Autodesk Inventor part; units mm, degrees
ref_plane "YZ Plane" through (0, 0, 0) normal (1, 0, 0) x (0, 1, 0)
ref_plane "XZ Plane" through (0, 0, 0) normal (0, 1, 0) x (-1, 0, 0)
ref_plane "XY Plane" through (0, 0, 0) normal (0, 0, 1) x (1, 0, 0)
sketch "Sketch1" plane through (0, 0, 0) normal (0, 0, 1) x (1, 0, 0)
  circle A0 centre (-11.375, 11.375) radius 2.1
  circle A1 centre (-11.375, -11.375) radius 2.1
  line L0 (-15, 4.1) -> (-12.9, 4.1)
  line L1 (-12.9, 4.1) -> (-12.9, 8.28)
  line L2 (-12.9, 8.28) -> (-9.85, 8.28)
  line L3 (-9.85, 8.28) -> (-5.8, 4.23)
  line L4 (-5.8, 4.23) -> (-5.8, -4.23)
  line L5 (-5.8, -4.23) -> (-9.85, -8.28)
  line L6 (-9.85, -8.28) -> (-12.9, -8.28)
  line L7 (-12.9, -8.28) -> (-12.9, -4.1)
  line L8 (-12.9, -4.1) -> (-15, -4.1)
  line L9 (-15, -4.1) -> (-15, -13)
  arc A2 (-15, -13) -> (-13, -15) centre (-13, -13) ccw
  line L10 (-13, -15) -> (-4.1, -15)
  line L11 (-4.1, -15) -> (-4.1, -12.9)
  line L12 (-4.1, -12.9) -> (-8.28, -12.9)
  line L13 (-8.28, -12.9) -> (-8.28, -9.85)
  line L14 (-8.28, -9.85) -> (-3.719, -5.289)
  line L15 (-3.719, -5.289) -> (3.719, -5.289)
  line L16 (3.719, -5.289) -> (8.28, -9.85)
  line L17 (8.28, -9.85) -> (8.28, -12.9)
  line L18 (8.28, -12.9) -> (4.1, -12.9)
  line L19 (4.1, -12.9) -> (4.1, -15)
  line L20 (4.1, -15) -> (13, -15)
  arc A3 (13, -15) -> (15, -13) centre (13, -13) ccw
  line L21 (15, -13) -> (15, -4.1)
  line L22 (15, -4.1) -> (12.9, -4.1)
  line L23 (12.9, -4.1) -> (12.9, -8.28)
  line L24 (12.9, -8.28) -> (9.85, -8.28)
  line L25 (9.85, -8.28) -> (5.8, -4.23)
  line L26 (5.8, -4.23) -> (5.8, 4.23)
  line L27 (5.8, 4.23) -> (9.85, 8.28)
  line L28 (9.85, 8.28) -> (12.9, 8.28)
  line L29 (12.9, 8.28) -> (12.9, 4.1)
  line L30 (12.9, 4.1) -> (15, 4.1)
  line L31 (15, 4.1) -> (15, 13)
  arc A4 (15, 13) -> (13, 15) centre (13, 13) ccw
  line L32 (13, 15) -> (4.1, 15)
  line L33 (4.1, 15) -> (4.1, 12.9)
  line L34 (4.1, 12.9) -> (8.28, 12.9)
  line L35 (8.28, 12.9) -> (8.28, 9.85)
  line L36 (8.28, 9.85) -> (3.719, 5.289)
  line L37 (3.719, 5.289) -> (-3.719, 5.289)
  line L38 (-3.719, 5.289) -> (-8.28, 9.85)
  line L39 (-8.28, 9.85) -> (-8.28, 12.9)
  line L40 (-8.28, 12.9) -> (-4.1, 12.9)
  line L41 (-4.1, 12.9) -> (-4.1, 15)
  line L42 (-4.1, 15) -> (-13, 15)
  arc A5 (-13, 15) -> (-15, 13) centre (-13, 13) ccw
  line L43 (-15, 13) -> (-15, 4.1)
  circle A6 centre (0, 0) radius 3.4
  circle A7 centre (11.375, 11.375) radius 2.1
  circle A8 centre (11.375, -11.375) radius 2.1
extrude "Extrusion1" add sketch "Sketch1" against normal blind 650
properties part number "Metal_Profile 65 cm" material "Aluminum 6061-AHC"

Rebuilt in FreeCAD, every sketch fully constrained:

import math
import FreeCAD as App
import Part
import Sketcher
Q = App.Units.Quantity

doc = App.newDocument("Part")
params = doc.addObject("Spreadsheet::Sheet", "Params")
for row, (alias, value) in enumerate([
    ("sketch1_radius", "2 mm"),
    ("sketch1_diameter", "4.2 mm"),
    ("sketch1_diameter2", "6.8 mm"),
    ("sketch1_width", "2.1 mm"),
    ("sketch1_width2", "8.9 mm"),
    ("pad1_length", "650 mm"),
], start=1):
    params.set(f"A{row}", alias)
    params.set(f"B{row}", "=" + value)
    params.setAlias(f"B{row}", alias)

body = doc.addObject("PartDesign::Body", "Body")

# Sketch on XY plane
sketch1 = body.newObject("Sketcher::SketchObject", "Sketch")
sketch1.AttachmentSupport = (doc.getObject("XY_Plane"), [""])
sketch1.MapMode = "FlatFace"
sketch1.addGeometry(Part.LineSegment(App.Vector(-15, 13, 0), App.Vector(-15, 4.1, 0)), False)
sketch1.addGeometry(Part.LineSegment(App.Vector(-15, 4.1, 0), App.Vector(-12.9, 4.1, 0)), False)
sketch1.addGeometry(Part.LineSegment(App.Vector(-12.9, 4.1, 0), App.Vector(-12.9, 8.3, 0)), False)
sketch1.addGeometry(Part.LineSegment(App.Vector(-12.9, 8.3, 0), App.Vector(-9.8, 8.3, 0)), False)
sketch1.addGeometry(Part.LineSegment(App.Vector(-9.8, 8.3, 0), App.Vector(-5.8, 4.2, 0)), False)
sketch1.addGeometry(Part.LineSegment(App.Vector(-5.8, 4.2, 0), App.Vector(-5.8, -4.2, 0)), False)
sketch1.addGeometry(Part.LineSegment(App.Vector(-5.8, -4.2, 0), App.Vector(-9.8, -8.3, 0)), False)
sketch1.addGeometry(Part.LineSegment(App.Vector(-9.8, -8.3, 0), App.Vector(-12.9, -8.3, 0)), False)
sketch1.addGeometry(Part.LineSegment(App.Vector(-12.9, -8.3, 0), App.Vector(-12.9, -4.1, 0)), False)
sketch1.addGeometry(Part.LineSegment(App.Vector(-12.9, -4.1, 0), App.Vector(-15, -4.1, 0)), False)
sketch1.addGeometry(Part.LineSegment(App.Vector(-15, -4.1, 0), App.Vector(-15, -13, 0)), False)
sketch1.addGeometry(Part.ArcOfCircle(Part.Circle(App.Vector(-13, -13, 0), App.Vector(0, 0, 1), 2), math.radians(180), math.radians(270)), False)
sketch1.addGeometry(Part.LineSegment(App.Vector(-13, -15, 0), App.Vector(-4.1, -15, 0)), False)
sketch1.addGeometry(Part.LineSegment(App.Vector(-4.1, -15, 0), App.Vector(-4.1, -12.9, 0)), False)
sketch1.addGeometry(Part.LineSegment(App.Vector(-4.1, -12.9, 0), App.Vector(-8.3, -12.9, 0)), False)
sketch1.addGeometry(Part.LineSegment(App.Vector(-8.3, -12.9, 0), App.Vector(-8.3, -9.8, 0)), False)
sketch1.addGeometry(Part.LineSegment(App.Vector(-8.3, -9.8, 0), App.Vector(-3.7, -5.3, 0)), False)
sketch1.addGeometry(Part.LineSegment(App.Vector(-3.7, -5.3, 0), App.Vector(3.7, -5.3, 0)), False)
sketch1.addGeometry(Part.LineSegment(App.Vector(3.7, -5.3, 0), App.Vector(8.3, -9.8, 0)), False)
sketch1.addGeometry(Part.LineSegment(App.Vector(8.3, -9.8, 0), App.Vector(8.3, -12.9, 0)), False)
sketch1.addGeometry(Part.LineSegment(App.Vector(8.3, -12.9, 0), App.Vector(4.1, -12.9, 0)), False)
sketch1.addGeometry(Part.LineSegment(App.Vector(4.1, -12.9, 0), App.Vector(4.1, -15, 0)), False)
sketch1.addGeometry(Part.LineSegment(App.Vector(4.1, -15, 0), App.Vector(13, -15, 0)), False)
sketch1.addGeometry(Part.ArcOfCircle(Part.Circle(App.Vector(13, -13, 0), App.Vector(0, 0, 1), 2), math.radians(-90), math.radians(0)), False)
sketch1.addGeometry(Part.LineSegment(App.Vector(15, -13, 0), App.Vector(15, -4.1, 0)), False)
sketch1.addGeometry(Part.LineSegment(App.Vector(15, -4.1, 0), App.Vector(12.9, -4.1, 0)), False)
sketch1.addGeometry(Part.LineSegment(App.Vector(12.9, -4.1, 0), App.Vector(12.9, -8.3, 0)), False)
sketch1.addGeometry(Part.LineSegment(App.Vector(12.9, -8.3, 0), App.Vector(9.8, -8.3, 0)), False)
sketch1.addGeometry(Part.LineSegment(App.Vector(9.8, -8.3, 0), App.Vector(5.8, -4.2, 0)), False)
sketch1.addGeometry(Part.LineSegment(App.Vector(5.8, -4.2, 0), App.Vector(5.8, 4.2, 0)), False)
sketch1.addGeometry(Part.LineSegment(App.Vector(5.8, 4.2, 0), App.Vector(9.8, 8.3, 0)), False)
sketch1.addGeometry(Part.LineSegment(App.Vector(9.8, 8.3, 0), App.Vector(12.9, 8.3, 0)), False)
sketch1.addGeometry(Part.LineSegment(App.Vector(12.9, 8.3, 0), App.Vector(12.9, 4.1, 0)), False)
sketch1.addGeometry(Part.LineSegment(App.Vector(12.9, 4.1, 0), App.Vector(15, 4.1, 0)), False)
sketch1.addGeometry(Part.LineSegment(App.Vector(15, 4.1, 0), App.Vector(15, 13, 0)), False)
sketch1.addGeometry(Part.ArcOfCircle(Part.Circle(App.Vector(13, 13, 0), App.Vector(0, 0, 1), 2), math.radians(0), math.radians(90)), False)
sketch1.addGeometry(Part.LineSegment(App.Vector(13, 15, 0), App.Vector(4.1, 15, 0)), False)
sketch1.addGeometry(Part.LineSegment(App.Vector(4.1, 15, 0), App.Vector(4.1, 12.9, 0)), False)
sketch1.addGeometry(Part.LineSegment(App.Vector(4.1, 12.9, 0), App.Vector(8.3, 12.9, 0)), False)
sketch1.addGeometry(Part.LineSegment(App.Vector(8.3, 12.9, 0), App.Vector(8.3, 9.8, 0)), False)
sketch1.addGeometry(Part.LineSegment(App.Vector(8.3, 9.8, 0), App.Vector(3.7, 5.3, 0)), False)
sketch1.addGeometry(Part.LineSegment(App.Vector(3.7, 5.3, 0), App.Vector(-3.7, 5.3, 0)), False)
sketch1.addGeometry(Part.LineSegment(App.Vector(-3.7, 5.3, 0), App.Vector(-8.3, 9.8, 0)), False)
sketch1.addGeometry(Part.LineSegment(App.Vector(-8.3, 9.8, 0), App.Vector(-8.3, 12.9, 0)), False)
sketch1.addGeometry(Part.LineSegment(App.Vector(-8.3, 12.9, 0), App.Vector(-4.1, 12.9, 0)), False)
sketch1.addGeometry(Part.LineSegment(App.Vector(-4.1, 12.9, 0), App.Vector(-4.1, 15, 0)), False)
sketch1.addGeometry(Part.LineSegment(App.Vector(-4.1, 15, 0), App.Vector(-13, 15, 0)), False)
sketch1.addGeometry(Part.ArcOfCircle(Part.Circle(App.Vector(-13, 13, 0), App.Vector(0, 0, 1), 2), math.radians(90), math.radians(180)), False)
sketch1.addGeometry(Part.Circle(App.Vector(-11.4, -11.4, 0), App.Vector(0, 0, 1), 2.1), False)
sketch1.addGeometry(Part.Circle(App.Vector(11.4, -11.4, 0), App.Vector(0, 0, 1), 2.1), False)
sketch1.addGeometry(Part.Circle(App.Vector(-11.4, 11.4, 0), App.Vector(0, 0, 1), 2.1), False)
sketch1.addGeometry(Part.Circle(App.Vector(0, 0, 0), App.Vector(0, 0, 1), 3.4), False)
sketch1.addGeometry(Part.Circle(App.Vector(11.4, 11.4, 0), App.Vector(0, 0, 1), 2.1), False)
sketch1.addConstraint(Sketcher.Constraint("Coincident", 0, 2, 1, 1))
sketch1.addConstraint(Sketcher.Constraint("Coincident", 1, 2, 2, 1))
sketch1.addConstraint(Sketcher.Constraint("Coincident", 2, 2, 3, 1))
sketch1.addConstraint(Sketcher.Constraint("Coincident", 3, 2, 4, 1))
sketch1.addConstraint(Sketcher.Constraint("Coincident", 4, 2, 5, 1))
sketch1.addConstraint(Sketcher.Constraint("Coincident", 5, 2, 6, 1))
sketch1.addConstraint(Sketcher.Constraint("Coincident", 6, 2, 7, 1))
sketch1.addConstraint(Sketcher.Constraint("Coincident", 7, 2, 8, 1))
sketch1.addConstraint(Sketcher.Constraint("Coincident", 8, 2, 9, 1))
sketch1.addConstraint(Sketcher.Constraint("Coincident", 9, 2, 10, 1))
sketch1.addConstraint(Sketcher.Constraint("Tangent", 10, 2, 11, 1))
sketch1.addConstraint(Sketcher.Constraint("Tangent", 11, 2, 12, 1))
sketch1.addConstraint(Sketcher.Constraint("Coincident", 12, 2, 13, 1))
sketch1.addConstraint(Sketcher.Constraint("Coincident", 13, 2, 14, 1))
sketch1.addConstraint(Sketcher.Constraint("Coincident", 14, 2, 15, 1))
sketch1.addConstraint(Sketcher.Constraint("Coincident", 15, 2, 16, 1))
sketch1.addConstraint(Sketcher.Constraint("Coincident", 16, 2, 17, 1))
sketch1.addConstraint(Sketcher.Constraint("Coincident", 17, 2, 18, 1))
sketch1.addConstraint(Sketcher.Constraint("Coincident", 18, 2, 19, 1))
sketch1.addConstraint(Sketcher.Constraint("Coincident", 19, 2, 20, 1))
sketch1.addConstraint(Sketcher.Constraint("Coincident", 20, 2, 21, 1))
sketch1.addConstraint(Sketcher.Constraint("Coincident", 21, 2, 22, 1))
sketch1.addConstraint(Sketcher.Constraint("Tangent", 22, 2, 23, 1))
sketch1.addConstraint(Sketcher.Constraint("Tangent", 23, 2, 24, 1))
sketch1.addConstraint(Sketcher.Constraint("Coincident", 24, 2, 25, 1))
sketch1.addConstraint(Sketcher.Constraint("Coincident", 25, 2, 26, 1))
sketch1.addConstraint(Sketcher.Constraint("Coincident", 26, 2, 27, 1))
sketch1.addConstraint(Sketcher.Constraint("Coincident", 27, 2, 28, 1))
sketch1.addConstraint(Sketcher.Constraint("Coincident", 28, 2, 29, 1))
sketch1.addConstraint(Sketcher.Constraint("Coincident", 29, 2, 30, 1))
sketch1.addConstraint(Sketcher.Constraint("Coincident", 30, 2, 31, 1))
sketch1.addConstraint(Sketcher.Constraint("Coincident", 31, 2, 32, 1))
sketch1.addConstraint(Sketcher.Constraint("Coincident", 32, 2, 33, 1))
sketch1.addConstraint(Sketcher.Constraint("Coincident", 33, 2, 34, 1))
sketch1.addConstraint(Sketcher.Constraint("Tangent", 34, 2, 35, 1))
sketch1.addConstraint(Sketcher.Constraint("Tangent", 35, 2, 36, 1))
sketch1.addConstraint(Sketcher.Constraint("Coincident", 36, 2, 37, 1))
sketch1.addConstraint(Sketcher.Constraint("Coincident", 37, 2, 38, 1))
sketch1.addConstraint(Sketcher.Constraint("Coincident", 38, 2, 39, 1))
sketch1.addConstraint(Sketcher.Constraint("Coincident", 39, 2, 40, 1))
sketch1.addConstraint(Sketcher.Constraint("Coincident", 40, 2, 41, 1))
sketch1.addConstraint(Sketcher.Constraint("Coincident", 41, 2, 42, 1))
sketch1.addConstraint(Sketcher.Constraint("Coincident", 42, 2, 43, 1))
sketch1.addConstraint(Sketcher.Constraint("Coincident", 43, 2, 44, 1))
sketch1.addConstraint(Sketcher.Constraint("Coincident", 44, 2, 45, 1))
sketch1.addConstraint(Sketcher.Constraint("Coincident", 45, 2, 46, 1))
sketch1.addConstraint(Sketcher.Constraint("Tangent", 46, 2, 47, 1))
sketch1.addConstraint(Sketcher.Constraint("Tangent", 47, 2, 0, 1))
sketch1.addConstraint(Sketcher.Constraint("Vertical", 0))
sketch1.addConstraint(Sketcher.Constraint("Horizontal", 1))
sketch1.addConstraint(Sketcher.Constraint("Vertical", 2))
sketch1.addConstraint(Sketcher.Constraint("Horizontal", 3))
sketch1.addConstraint(Sketcher.Constraint("Vertical", 5))
sketch1.addConstraint(Sketcher.Constraint("Horizontal", 7))
sketch1.addConstraint(Sketcher.Constraint("Vertical", 8))
sketch1.addConstraint(Sketcher.Constraint("Horizontal", 9))
sketch1.addConstraint(Sketcher.Constraint("Vertical", 10))
sketch1.addConstraint(Sketcher.Constraint("Horizontal", 12))
sketch1.addConstraint(Sketcher.Constraint("Vertical", 13))
sketch1.addConstraint(Sketcher.Constraint("Horizontal", 14))
sketch1.addConstraint(Sketcher.Constraint("Vertical", 15))
sketch1.addConstraint(Sketcher.Constraint("Horizontal", 17))
sketch1.addConstraint(Sketcher.Constraint("Vertical", 19))
sketch1.addConstraint(Sketcher.Constraint("Horizontal", 20))
sketch1.addConstraint(Sketcher.Constraint("Vertical", 21))
sketch1.addConstraint(Sketcher.Constraint("Horizontal", 22))
sketch1.addConstraint(Sketcher.Constraint("Vertical", 24))
sketch1.addConstraint(Sketcher.Constraint("Horizontal", 25))
sketch1.addConstraint(Sketcher.Constraint("Vertical", 26))
sketch1.addConstraint(Sketcher.Constraint("Horizontal", 27))
sketch1.addConstraint(Sketcher.Constraint("Vertical", 29))
sketch1.addConstraint(Sketcher.Constraint("Horizontal", 31))
sketch1.addConstraint(Sketcher.Constraint("Vertical", 32))
sketch1.addConstraint(Sketcher.Constraint("Horizontal", 33))
sketch1.addConstraint(Sketcher.Constraint("Vertical", 34))
sketch1.addConstraint(Sketcher.Constraint("Horizontal", 36))
sketch1.addConstraint(Sketcher.Constraint("Vertical", 37))
sketch1.addConstraint(Sketcher.Constraint("Horizontal", 38))
sketch1.addConstraint(Sketcher.Constraint("Vertical", 39))
sketch1.addConstraint(Sketcher.Constraint("Horizontal", 41))
sketch1.addConstraint(Sketcher.Constraint("Vertical", 43))
sketch1.addConstraint(Sketcher.Constraint("Horizontal", 44))
sketch1.addConstraint(Sketcher.Constraint("Vertical", 45))
sketch1.addConstraint(Sketcher.Constraint("Horizontal", 46))
sketch1.addConstraint(Sketcher.Constraint("Coincident", 51, 3, -1, 1))
sketch1.addConstraint(Sketcher.Constraint("Equal", 11, 23))
sketch1.addConstraint(Sketcher.Constraint("Equal", 23, 35))
sketch1.addConstraint(Sketcher.Constraint("Equal", 35, 47))
sketch1.addConstraint(Sketcher.Constraint("Equal", 48, 49))
sketch1.addConstraint(Sketcher.Constraint("Equal", 49, 50))
sketch1.addConstraint(Sketcher.Constraint("Equal", 50, 52))
sketch1.addConstraint(Sketcher.Constraint("Symmetric", 11, 3, 35, 3, -1, 1))
sketch1.addConstraint(Sketcher.Constraint("Symmetric", 23, 3, 47, 3, -1, 1))
sketch1.addConstraint(Sketcher.Constraint("Symmetric", 49, 3, 50, 3, -1, 1))
sketch1.addConstraint(Sketcher.Constraint("Symmetric", 48, 3, 52, 3, -1, 1))
sketch1.addConstraint(Sketcher.Constraint("Symmetric", 1, 2, 25, 2, -1, 1))
sketch1.addConstraint(Sketcher.Constraint("Symmetric", 3, 2, 27, 2, -1, 1))
sketch1.addConstraint(Sketcher.Constraint("Symmetric", 4, 2, 28, 2, -1, 1))
sketch1.addConstraint(Sketcher.Constraint("Symmetric", 6, 2, 30, 2, -1, 1))
sketch1.addConstraint(Sketcher.Constraint("Symmetric", 8, 2, 32, 2, -1, 1))
sketch1.addConstraint(Sketcher.Constraint("Symmetric", 13, 2, 37, 2, -1, 1))
sketch1.addConstraint(Sketcher.Constraint("Symmetric", 15, 2, 39, 2, -1, 1))
sketch1.addConstraint(Sketcher.Constraint("Symmetric", 16, 2, 40, 2, -1, 1))
sketch1.addConstraint(Sketcher.Constraint("Symmetric", 18, 2, 42, 2, -1, 1))
sketch1.addConstraint(Sketcher.Constraint("Symmetric", 20, 2, 44, 2, -1, 1))
sketch1.addConstraint(Sketcher.Constraint("Symmetric", 11, 3, 23, 3, -2))
sketch1.addConstraint(Sketcher.Constraint("Symmetric", 48, 3, 49, 3, -2))
sketch1.addConstraint(Sketcher.Constraint("Symmetric", 15, 2, 18, 2, -2))
sketch1.addConstraint(Sketcher.Constraint("Symmetric", 13, 2, 20, 2, -2))
sketch1.addConstraint(Sketcher.Constraint("Symmetric", 8, 2, 25, 2, -2))
sketch1.addConstraint(Sketcher.Constraint("Symmetric", 6, 2, 27, 2, -2))
sketch1.addConstraint(Sketcher.Constraint("Perpendicular", 4, 6))
sketch1.addConstraint(Sketcher.Constraint("Parallel", 6, 16))
sketch1.addConstraint(Sketcher.Constraint("Perpendicular", 16, 18))
sketch1.addConstraint(Sketcher.Constraint("Perpendicular", 28, 30))
sketch1.addConstraint(Sketcher.Constraint("Perpendicular", 40, 42))
sketch1.addConstraint(Sketcher.Constraint("Horizontal", 5, 2, 28, 2))
sketch1.addConstraint(Sketcher.Constraint("Equal", 46, 0))
sketch1.addConstraint(Sketcher.Constraint("Equal", 44, 2))
sketch1.addConstraint(Sketcher.Constraint("Equal", 33, 13))
sketch1.addConstraint(Sketcher.Constraint("Equal", 31, 15))
sketch1.addConstraint(Sketcher.Constraint("Radius", 11, Q("2 mm")))
sketch1.addConstraint(Sketcher.Constraint("Diameter", 48, Q("4.2 mm")))
sketch1.addConstraint(Sketcher.Constraint("Diameter", 51, Q("6.8 mm")))
sketch1.addConstraint(Sketcher.Constraint("DistanceX", 1, 1, 1, 2, Q("2.1 mm")))
sketch1.addConstraint(Sketcher.Constraint("DistanceX", 12, 1, 12, 2, Q("8.9 mm")))
sketch1.addConstraint(Sketcher.Constraint("DistanceX", 11, 3, -1, 1, Q("13 mm")))
sketch1.addConstraint(Sketcher.Constraint("DistanceY", 11, 3, -1, 1, Q("13 mm")))
sketch1.addConstraint(Sketcher.Constraint("DistanceX", 3, 1, 3, 2, Q("3.05 mm")))
sketch1.addConstraint(Sketcher.Constraint("DistanceX", 14, 2, 14, 1, Q("4.18 mm")))
sketch1.addConstraint(Sketcher.Constraint("DistanceY", 5, 2, 5, 1, Q("8.46 mm")))
sketch1.addConstraint(Sketcher.Constraint("DistanceX", 17, 1, 17, 2, Q("7.438 mm")))
sketch1.addConstraint(Sketcher.Constraint("DistanceX", 48, 3, 49, 3, Q("22.75 mm")))
sketch1.addConstraint(Sketcher.Constraint("DistanceY", 48, 3, 50, 3, Q("22.75 mm")))
sketch1.setExpression("Constraints[121]", "Params.sketch1_radius")
sketch1.setExpression("Constraints[122]", "Params.sketch1_diameter")
sketch1.setExpression("Constraints[123]", "Params.sketch1_diameter2")
sketch1.setExpression("Constraints[124]", "Params.sketch1_width")
sketch1.setExpression("Constraints[125]", "Params.sketch1_width2")
pad1 = body.newObject("PartDesign::Pad", "Pad")
pad1.Profile = sketch1
pad1.setExpression("Length", "Params.pad1_length")
pad1.Reversed = True

doc.recompute()
